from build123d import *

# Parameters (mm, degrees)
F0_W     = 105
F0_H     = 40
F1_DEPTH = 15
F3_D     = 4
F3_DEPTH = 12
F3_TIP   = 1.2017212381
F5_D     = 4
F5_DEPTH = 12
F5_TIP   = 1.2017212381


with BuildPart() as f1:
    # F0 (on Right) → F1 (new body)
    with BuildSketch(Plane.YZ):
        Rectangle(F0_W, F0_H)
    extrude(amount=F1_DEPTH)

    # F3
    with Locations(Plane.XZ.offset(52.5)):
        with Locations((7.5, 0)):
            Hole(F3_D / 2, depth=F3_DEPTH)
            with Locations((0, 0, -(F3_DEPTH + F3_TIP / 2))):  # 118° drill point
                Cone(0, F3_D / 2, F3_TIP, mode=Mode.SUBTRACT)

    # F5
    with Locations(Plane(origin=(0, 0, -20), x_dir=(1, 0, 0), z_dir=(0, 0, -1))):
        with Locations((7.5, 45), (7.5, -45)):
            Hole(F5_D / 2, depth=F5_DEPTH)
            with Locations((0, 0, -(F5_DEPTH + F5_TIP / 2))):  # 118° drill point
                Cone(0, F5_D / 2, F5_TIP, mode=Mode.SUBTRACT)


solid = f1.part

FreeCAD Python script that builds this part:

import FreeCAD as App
import Part
import Sketcher

V = App.Vector
Q = App.Units.Quantity


def add_polygon(sketch, points):
    """Adds a closed chain of lines whose ends are joined by coincident constraints."""
    first, n = sketch.GeometryCount, len(points)
    for a, b in zip(points, points[1:] + points[:1]):
        sketch.addGeometry(Part.LineSegment(App.Vector(*a, 0), App.Vector(*b, 0)), False)
    for i in range(n):
        sketch.addConstraint(Sketcher.Constraint("Coincident", first + i, 2, first + (i + 1) % n, 1))

doc = App.newDocument("Part")
params = doc.addObject("Spreadsheet::Sheet", "Params")
for row, (alias, value) in enumerate([
    ("sketch1_width", "105 mm"),
    ("sketch1_height", "40 mm"),
    ("pad1_length", "15 mm"),
    ("sketch2_diameter", "4 mm"),
    ("hole_diameter", "4 mm"),
    ("hole_depth", "12 mm"),
    ("sketch3_diameter", "4 mm"),
    ("hole2_diameter", "4 mm"),
    ("hole2_depth", "12 mm"),
], start=1):
    params.set(f"A{row}", alias)
    params.set(f"B{row}", "=" + value)
    params.setAlias(f"B{row}", alias)

body = doc.addObject("PartDesign::Body", "Body")

sketch1 = body.newObject("Sketcher::SketchObject", "Sketch")
sketch1.AttachmentSupport = (doc.getObject("YZ_Plane"), [""])
sketch1.MapMode = "FlatFace"
add_polygon(sketch1, [(-52, 20), (-52, -20), (52, -20), (52, 20)])
sketch1.addConstraint([
    Sketcher.Constraint("Vertical", 0),
    Sketcher.Constraint("Horizontal", 1),
    Sketcher.Constraint("Vertical", 2),
    Sketcher.Constraint("Horizontal", 3),
    Sketcher.Constraint("Symmetric", 0, 2, 2, 2, -1, 1),
    Sketcher.Constraint("DistanceX", 1, 1, 1, 2, Q("105 mm")),
    Sketcher.Constraint("DistanceY", 0, 2, 0, 1, Q("40 mm")),
])
sketch1.setExpression("Constraints[9]", "Params.sketch1_width")
sketch1.setExpression("Constraints[10]", "Params.sketch1_height")
pad1 = body.newObject("PartDesign::Pad", "Pad")
pad1.Profile = sketch1
pad1.setExpression("Length", "Params.pad1_length")

sketch2 = body.newObject("Sketcher::SketchObject", "Sketch001")
sketch2.AttachmentSupport = (doc.getObject("XZ_Plane"), [""])
sketch2.MapMode = "FlatFace"
sketch2.AttachmentOffset = App.Placement(V(0, 0, 52.5), App.Rotation())
sketch2.addGeometry(Part.Circle(V(7.5, 0, 0), V(0, 0, 1), 2), False)
sketch2.addConstraint([
    Sketcher.Constraint("PointOnObject", 0, 3, -1),
    Sketcher.Constraint("Diameter", 0, Q("4 mm")),
    Sketcher.Constraint("DistanceX", -1, 1, 0, 3, Q("7.5 mm")),
])
sketch2.setExpression("Constraints[1]", "Params.sketch2_diameter")
doc.recompute()
hole = body.newObject("PartDesign::Hole", "Hole")
hole.Profile = sketch2
hole.ThreadType = "None"
hole.setExpression("Diameter", "Params.hole_diameter")
hole.DepthType = "Dimension"
hole.setExpression("Depth", "Params.hole_depth")
hole.DrillPoint = "Angled"
hole.DrillPointAngle = 118

sketch3 = body.newObject("Sketcher::SketchObject", "Sketch002")
sketch3.AttachmentSupport = (doc.getObject("XY_Plane"), [""])
sketch3.MapMode = "FlatFace"
sketch3.AttachmentOffset = App.Placement(V(0, 0, -20), App.Rotation())
sketch3.addGeometry([
    Part.Circle(V(7.5, -45, 0), V(0, 0, 1), 2),
    Part.Circle(V(7.5, 45, 0), V(0, 0, 1), 2),
], False)
sketch3.addConstraint([
    Sketcher.Constraint("Equal", 0, 1),
    Sketcher.Constraint("Symmetric", 0, 3, 1, 3, -1),
    Sketcher.Constraint("Diameter", 0, Q("4 mm")),
    Sketcher.Constraint("DistanceY", 0, 3, -1, 1, Q("45 mm")),
    Sketcher.Constraint("DistanceX", -1, 1, 0, 3, Q("7.5 mm")),
])
sketch3.setExpression("Constraints[2]", "Params.sketch3_diameter")
doc.recompute()
hole2 = body.newObject("PartDesign::Hole", "Hole001")
hole2.Profile = sketch3
hole2.ThreadType = "None"
hole2.setExpression("Diameter", "Params.hole2_diameter")
hole2.DepthType = "Dimension"
hole2.setExpression("Depth", "Params.hole2_depth")
hole2.DrillPoint = "Angled"
hole2.DrillPointAngle = 118
hole2.Reversed = True

doc.recompute()
